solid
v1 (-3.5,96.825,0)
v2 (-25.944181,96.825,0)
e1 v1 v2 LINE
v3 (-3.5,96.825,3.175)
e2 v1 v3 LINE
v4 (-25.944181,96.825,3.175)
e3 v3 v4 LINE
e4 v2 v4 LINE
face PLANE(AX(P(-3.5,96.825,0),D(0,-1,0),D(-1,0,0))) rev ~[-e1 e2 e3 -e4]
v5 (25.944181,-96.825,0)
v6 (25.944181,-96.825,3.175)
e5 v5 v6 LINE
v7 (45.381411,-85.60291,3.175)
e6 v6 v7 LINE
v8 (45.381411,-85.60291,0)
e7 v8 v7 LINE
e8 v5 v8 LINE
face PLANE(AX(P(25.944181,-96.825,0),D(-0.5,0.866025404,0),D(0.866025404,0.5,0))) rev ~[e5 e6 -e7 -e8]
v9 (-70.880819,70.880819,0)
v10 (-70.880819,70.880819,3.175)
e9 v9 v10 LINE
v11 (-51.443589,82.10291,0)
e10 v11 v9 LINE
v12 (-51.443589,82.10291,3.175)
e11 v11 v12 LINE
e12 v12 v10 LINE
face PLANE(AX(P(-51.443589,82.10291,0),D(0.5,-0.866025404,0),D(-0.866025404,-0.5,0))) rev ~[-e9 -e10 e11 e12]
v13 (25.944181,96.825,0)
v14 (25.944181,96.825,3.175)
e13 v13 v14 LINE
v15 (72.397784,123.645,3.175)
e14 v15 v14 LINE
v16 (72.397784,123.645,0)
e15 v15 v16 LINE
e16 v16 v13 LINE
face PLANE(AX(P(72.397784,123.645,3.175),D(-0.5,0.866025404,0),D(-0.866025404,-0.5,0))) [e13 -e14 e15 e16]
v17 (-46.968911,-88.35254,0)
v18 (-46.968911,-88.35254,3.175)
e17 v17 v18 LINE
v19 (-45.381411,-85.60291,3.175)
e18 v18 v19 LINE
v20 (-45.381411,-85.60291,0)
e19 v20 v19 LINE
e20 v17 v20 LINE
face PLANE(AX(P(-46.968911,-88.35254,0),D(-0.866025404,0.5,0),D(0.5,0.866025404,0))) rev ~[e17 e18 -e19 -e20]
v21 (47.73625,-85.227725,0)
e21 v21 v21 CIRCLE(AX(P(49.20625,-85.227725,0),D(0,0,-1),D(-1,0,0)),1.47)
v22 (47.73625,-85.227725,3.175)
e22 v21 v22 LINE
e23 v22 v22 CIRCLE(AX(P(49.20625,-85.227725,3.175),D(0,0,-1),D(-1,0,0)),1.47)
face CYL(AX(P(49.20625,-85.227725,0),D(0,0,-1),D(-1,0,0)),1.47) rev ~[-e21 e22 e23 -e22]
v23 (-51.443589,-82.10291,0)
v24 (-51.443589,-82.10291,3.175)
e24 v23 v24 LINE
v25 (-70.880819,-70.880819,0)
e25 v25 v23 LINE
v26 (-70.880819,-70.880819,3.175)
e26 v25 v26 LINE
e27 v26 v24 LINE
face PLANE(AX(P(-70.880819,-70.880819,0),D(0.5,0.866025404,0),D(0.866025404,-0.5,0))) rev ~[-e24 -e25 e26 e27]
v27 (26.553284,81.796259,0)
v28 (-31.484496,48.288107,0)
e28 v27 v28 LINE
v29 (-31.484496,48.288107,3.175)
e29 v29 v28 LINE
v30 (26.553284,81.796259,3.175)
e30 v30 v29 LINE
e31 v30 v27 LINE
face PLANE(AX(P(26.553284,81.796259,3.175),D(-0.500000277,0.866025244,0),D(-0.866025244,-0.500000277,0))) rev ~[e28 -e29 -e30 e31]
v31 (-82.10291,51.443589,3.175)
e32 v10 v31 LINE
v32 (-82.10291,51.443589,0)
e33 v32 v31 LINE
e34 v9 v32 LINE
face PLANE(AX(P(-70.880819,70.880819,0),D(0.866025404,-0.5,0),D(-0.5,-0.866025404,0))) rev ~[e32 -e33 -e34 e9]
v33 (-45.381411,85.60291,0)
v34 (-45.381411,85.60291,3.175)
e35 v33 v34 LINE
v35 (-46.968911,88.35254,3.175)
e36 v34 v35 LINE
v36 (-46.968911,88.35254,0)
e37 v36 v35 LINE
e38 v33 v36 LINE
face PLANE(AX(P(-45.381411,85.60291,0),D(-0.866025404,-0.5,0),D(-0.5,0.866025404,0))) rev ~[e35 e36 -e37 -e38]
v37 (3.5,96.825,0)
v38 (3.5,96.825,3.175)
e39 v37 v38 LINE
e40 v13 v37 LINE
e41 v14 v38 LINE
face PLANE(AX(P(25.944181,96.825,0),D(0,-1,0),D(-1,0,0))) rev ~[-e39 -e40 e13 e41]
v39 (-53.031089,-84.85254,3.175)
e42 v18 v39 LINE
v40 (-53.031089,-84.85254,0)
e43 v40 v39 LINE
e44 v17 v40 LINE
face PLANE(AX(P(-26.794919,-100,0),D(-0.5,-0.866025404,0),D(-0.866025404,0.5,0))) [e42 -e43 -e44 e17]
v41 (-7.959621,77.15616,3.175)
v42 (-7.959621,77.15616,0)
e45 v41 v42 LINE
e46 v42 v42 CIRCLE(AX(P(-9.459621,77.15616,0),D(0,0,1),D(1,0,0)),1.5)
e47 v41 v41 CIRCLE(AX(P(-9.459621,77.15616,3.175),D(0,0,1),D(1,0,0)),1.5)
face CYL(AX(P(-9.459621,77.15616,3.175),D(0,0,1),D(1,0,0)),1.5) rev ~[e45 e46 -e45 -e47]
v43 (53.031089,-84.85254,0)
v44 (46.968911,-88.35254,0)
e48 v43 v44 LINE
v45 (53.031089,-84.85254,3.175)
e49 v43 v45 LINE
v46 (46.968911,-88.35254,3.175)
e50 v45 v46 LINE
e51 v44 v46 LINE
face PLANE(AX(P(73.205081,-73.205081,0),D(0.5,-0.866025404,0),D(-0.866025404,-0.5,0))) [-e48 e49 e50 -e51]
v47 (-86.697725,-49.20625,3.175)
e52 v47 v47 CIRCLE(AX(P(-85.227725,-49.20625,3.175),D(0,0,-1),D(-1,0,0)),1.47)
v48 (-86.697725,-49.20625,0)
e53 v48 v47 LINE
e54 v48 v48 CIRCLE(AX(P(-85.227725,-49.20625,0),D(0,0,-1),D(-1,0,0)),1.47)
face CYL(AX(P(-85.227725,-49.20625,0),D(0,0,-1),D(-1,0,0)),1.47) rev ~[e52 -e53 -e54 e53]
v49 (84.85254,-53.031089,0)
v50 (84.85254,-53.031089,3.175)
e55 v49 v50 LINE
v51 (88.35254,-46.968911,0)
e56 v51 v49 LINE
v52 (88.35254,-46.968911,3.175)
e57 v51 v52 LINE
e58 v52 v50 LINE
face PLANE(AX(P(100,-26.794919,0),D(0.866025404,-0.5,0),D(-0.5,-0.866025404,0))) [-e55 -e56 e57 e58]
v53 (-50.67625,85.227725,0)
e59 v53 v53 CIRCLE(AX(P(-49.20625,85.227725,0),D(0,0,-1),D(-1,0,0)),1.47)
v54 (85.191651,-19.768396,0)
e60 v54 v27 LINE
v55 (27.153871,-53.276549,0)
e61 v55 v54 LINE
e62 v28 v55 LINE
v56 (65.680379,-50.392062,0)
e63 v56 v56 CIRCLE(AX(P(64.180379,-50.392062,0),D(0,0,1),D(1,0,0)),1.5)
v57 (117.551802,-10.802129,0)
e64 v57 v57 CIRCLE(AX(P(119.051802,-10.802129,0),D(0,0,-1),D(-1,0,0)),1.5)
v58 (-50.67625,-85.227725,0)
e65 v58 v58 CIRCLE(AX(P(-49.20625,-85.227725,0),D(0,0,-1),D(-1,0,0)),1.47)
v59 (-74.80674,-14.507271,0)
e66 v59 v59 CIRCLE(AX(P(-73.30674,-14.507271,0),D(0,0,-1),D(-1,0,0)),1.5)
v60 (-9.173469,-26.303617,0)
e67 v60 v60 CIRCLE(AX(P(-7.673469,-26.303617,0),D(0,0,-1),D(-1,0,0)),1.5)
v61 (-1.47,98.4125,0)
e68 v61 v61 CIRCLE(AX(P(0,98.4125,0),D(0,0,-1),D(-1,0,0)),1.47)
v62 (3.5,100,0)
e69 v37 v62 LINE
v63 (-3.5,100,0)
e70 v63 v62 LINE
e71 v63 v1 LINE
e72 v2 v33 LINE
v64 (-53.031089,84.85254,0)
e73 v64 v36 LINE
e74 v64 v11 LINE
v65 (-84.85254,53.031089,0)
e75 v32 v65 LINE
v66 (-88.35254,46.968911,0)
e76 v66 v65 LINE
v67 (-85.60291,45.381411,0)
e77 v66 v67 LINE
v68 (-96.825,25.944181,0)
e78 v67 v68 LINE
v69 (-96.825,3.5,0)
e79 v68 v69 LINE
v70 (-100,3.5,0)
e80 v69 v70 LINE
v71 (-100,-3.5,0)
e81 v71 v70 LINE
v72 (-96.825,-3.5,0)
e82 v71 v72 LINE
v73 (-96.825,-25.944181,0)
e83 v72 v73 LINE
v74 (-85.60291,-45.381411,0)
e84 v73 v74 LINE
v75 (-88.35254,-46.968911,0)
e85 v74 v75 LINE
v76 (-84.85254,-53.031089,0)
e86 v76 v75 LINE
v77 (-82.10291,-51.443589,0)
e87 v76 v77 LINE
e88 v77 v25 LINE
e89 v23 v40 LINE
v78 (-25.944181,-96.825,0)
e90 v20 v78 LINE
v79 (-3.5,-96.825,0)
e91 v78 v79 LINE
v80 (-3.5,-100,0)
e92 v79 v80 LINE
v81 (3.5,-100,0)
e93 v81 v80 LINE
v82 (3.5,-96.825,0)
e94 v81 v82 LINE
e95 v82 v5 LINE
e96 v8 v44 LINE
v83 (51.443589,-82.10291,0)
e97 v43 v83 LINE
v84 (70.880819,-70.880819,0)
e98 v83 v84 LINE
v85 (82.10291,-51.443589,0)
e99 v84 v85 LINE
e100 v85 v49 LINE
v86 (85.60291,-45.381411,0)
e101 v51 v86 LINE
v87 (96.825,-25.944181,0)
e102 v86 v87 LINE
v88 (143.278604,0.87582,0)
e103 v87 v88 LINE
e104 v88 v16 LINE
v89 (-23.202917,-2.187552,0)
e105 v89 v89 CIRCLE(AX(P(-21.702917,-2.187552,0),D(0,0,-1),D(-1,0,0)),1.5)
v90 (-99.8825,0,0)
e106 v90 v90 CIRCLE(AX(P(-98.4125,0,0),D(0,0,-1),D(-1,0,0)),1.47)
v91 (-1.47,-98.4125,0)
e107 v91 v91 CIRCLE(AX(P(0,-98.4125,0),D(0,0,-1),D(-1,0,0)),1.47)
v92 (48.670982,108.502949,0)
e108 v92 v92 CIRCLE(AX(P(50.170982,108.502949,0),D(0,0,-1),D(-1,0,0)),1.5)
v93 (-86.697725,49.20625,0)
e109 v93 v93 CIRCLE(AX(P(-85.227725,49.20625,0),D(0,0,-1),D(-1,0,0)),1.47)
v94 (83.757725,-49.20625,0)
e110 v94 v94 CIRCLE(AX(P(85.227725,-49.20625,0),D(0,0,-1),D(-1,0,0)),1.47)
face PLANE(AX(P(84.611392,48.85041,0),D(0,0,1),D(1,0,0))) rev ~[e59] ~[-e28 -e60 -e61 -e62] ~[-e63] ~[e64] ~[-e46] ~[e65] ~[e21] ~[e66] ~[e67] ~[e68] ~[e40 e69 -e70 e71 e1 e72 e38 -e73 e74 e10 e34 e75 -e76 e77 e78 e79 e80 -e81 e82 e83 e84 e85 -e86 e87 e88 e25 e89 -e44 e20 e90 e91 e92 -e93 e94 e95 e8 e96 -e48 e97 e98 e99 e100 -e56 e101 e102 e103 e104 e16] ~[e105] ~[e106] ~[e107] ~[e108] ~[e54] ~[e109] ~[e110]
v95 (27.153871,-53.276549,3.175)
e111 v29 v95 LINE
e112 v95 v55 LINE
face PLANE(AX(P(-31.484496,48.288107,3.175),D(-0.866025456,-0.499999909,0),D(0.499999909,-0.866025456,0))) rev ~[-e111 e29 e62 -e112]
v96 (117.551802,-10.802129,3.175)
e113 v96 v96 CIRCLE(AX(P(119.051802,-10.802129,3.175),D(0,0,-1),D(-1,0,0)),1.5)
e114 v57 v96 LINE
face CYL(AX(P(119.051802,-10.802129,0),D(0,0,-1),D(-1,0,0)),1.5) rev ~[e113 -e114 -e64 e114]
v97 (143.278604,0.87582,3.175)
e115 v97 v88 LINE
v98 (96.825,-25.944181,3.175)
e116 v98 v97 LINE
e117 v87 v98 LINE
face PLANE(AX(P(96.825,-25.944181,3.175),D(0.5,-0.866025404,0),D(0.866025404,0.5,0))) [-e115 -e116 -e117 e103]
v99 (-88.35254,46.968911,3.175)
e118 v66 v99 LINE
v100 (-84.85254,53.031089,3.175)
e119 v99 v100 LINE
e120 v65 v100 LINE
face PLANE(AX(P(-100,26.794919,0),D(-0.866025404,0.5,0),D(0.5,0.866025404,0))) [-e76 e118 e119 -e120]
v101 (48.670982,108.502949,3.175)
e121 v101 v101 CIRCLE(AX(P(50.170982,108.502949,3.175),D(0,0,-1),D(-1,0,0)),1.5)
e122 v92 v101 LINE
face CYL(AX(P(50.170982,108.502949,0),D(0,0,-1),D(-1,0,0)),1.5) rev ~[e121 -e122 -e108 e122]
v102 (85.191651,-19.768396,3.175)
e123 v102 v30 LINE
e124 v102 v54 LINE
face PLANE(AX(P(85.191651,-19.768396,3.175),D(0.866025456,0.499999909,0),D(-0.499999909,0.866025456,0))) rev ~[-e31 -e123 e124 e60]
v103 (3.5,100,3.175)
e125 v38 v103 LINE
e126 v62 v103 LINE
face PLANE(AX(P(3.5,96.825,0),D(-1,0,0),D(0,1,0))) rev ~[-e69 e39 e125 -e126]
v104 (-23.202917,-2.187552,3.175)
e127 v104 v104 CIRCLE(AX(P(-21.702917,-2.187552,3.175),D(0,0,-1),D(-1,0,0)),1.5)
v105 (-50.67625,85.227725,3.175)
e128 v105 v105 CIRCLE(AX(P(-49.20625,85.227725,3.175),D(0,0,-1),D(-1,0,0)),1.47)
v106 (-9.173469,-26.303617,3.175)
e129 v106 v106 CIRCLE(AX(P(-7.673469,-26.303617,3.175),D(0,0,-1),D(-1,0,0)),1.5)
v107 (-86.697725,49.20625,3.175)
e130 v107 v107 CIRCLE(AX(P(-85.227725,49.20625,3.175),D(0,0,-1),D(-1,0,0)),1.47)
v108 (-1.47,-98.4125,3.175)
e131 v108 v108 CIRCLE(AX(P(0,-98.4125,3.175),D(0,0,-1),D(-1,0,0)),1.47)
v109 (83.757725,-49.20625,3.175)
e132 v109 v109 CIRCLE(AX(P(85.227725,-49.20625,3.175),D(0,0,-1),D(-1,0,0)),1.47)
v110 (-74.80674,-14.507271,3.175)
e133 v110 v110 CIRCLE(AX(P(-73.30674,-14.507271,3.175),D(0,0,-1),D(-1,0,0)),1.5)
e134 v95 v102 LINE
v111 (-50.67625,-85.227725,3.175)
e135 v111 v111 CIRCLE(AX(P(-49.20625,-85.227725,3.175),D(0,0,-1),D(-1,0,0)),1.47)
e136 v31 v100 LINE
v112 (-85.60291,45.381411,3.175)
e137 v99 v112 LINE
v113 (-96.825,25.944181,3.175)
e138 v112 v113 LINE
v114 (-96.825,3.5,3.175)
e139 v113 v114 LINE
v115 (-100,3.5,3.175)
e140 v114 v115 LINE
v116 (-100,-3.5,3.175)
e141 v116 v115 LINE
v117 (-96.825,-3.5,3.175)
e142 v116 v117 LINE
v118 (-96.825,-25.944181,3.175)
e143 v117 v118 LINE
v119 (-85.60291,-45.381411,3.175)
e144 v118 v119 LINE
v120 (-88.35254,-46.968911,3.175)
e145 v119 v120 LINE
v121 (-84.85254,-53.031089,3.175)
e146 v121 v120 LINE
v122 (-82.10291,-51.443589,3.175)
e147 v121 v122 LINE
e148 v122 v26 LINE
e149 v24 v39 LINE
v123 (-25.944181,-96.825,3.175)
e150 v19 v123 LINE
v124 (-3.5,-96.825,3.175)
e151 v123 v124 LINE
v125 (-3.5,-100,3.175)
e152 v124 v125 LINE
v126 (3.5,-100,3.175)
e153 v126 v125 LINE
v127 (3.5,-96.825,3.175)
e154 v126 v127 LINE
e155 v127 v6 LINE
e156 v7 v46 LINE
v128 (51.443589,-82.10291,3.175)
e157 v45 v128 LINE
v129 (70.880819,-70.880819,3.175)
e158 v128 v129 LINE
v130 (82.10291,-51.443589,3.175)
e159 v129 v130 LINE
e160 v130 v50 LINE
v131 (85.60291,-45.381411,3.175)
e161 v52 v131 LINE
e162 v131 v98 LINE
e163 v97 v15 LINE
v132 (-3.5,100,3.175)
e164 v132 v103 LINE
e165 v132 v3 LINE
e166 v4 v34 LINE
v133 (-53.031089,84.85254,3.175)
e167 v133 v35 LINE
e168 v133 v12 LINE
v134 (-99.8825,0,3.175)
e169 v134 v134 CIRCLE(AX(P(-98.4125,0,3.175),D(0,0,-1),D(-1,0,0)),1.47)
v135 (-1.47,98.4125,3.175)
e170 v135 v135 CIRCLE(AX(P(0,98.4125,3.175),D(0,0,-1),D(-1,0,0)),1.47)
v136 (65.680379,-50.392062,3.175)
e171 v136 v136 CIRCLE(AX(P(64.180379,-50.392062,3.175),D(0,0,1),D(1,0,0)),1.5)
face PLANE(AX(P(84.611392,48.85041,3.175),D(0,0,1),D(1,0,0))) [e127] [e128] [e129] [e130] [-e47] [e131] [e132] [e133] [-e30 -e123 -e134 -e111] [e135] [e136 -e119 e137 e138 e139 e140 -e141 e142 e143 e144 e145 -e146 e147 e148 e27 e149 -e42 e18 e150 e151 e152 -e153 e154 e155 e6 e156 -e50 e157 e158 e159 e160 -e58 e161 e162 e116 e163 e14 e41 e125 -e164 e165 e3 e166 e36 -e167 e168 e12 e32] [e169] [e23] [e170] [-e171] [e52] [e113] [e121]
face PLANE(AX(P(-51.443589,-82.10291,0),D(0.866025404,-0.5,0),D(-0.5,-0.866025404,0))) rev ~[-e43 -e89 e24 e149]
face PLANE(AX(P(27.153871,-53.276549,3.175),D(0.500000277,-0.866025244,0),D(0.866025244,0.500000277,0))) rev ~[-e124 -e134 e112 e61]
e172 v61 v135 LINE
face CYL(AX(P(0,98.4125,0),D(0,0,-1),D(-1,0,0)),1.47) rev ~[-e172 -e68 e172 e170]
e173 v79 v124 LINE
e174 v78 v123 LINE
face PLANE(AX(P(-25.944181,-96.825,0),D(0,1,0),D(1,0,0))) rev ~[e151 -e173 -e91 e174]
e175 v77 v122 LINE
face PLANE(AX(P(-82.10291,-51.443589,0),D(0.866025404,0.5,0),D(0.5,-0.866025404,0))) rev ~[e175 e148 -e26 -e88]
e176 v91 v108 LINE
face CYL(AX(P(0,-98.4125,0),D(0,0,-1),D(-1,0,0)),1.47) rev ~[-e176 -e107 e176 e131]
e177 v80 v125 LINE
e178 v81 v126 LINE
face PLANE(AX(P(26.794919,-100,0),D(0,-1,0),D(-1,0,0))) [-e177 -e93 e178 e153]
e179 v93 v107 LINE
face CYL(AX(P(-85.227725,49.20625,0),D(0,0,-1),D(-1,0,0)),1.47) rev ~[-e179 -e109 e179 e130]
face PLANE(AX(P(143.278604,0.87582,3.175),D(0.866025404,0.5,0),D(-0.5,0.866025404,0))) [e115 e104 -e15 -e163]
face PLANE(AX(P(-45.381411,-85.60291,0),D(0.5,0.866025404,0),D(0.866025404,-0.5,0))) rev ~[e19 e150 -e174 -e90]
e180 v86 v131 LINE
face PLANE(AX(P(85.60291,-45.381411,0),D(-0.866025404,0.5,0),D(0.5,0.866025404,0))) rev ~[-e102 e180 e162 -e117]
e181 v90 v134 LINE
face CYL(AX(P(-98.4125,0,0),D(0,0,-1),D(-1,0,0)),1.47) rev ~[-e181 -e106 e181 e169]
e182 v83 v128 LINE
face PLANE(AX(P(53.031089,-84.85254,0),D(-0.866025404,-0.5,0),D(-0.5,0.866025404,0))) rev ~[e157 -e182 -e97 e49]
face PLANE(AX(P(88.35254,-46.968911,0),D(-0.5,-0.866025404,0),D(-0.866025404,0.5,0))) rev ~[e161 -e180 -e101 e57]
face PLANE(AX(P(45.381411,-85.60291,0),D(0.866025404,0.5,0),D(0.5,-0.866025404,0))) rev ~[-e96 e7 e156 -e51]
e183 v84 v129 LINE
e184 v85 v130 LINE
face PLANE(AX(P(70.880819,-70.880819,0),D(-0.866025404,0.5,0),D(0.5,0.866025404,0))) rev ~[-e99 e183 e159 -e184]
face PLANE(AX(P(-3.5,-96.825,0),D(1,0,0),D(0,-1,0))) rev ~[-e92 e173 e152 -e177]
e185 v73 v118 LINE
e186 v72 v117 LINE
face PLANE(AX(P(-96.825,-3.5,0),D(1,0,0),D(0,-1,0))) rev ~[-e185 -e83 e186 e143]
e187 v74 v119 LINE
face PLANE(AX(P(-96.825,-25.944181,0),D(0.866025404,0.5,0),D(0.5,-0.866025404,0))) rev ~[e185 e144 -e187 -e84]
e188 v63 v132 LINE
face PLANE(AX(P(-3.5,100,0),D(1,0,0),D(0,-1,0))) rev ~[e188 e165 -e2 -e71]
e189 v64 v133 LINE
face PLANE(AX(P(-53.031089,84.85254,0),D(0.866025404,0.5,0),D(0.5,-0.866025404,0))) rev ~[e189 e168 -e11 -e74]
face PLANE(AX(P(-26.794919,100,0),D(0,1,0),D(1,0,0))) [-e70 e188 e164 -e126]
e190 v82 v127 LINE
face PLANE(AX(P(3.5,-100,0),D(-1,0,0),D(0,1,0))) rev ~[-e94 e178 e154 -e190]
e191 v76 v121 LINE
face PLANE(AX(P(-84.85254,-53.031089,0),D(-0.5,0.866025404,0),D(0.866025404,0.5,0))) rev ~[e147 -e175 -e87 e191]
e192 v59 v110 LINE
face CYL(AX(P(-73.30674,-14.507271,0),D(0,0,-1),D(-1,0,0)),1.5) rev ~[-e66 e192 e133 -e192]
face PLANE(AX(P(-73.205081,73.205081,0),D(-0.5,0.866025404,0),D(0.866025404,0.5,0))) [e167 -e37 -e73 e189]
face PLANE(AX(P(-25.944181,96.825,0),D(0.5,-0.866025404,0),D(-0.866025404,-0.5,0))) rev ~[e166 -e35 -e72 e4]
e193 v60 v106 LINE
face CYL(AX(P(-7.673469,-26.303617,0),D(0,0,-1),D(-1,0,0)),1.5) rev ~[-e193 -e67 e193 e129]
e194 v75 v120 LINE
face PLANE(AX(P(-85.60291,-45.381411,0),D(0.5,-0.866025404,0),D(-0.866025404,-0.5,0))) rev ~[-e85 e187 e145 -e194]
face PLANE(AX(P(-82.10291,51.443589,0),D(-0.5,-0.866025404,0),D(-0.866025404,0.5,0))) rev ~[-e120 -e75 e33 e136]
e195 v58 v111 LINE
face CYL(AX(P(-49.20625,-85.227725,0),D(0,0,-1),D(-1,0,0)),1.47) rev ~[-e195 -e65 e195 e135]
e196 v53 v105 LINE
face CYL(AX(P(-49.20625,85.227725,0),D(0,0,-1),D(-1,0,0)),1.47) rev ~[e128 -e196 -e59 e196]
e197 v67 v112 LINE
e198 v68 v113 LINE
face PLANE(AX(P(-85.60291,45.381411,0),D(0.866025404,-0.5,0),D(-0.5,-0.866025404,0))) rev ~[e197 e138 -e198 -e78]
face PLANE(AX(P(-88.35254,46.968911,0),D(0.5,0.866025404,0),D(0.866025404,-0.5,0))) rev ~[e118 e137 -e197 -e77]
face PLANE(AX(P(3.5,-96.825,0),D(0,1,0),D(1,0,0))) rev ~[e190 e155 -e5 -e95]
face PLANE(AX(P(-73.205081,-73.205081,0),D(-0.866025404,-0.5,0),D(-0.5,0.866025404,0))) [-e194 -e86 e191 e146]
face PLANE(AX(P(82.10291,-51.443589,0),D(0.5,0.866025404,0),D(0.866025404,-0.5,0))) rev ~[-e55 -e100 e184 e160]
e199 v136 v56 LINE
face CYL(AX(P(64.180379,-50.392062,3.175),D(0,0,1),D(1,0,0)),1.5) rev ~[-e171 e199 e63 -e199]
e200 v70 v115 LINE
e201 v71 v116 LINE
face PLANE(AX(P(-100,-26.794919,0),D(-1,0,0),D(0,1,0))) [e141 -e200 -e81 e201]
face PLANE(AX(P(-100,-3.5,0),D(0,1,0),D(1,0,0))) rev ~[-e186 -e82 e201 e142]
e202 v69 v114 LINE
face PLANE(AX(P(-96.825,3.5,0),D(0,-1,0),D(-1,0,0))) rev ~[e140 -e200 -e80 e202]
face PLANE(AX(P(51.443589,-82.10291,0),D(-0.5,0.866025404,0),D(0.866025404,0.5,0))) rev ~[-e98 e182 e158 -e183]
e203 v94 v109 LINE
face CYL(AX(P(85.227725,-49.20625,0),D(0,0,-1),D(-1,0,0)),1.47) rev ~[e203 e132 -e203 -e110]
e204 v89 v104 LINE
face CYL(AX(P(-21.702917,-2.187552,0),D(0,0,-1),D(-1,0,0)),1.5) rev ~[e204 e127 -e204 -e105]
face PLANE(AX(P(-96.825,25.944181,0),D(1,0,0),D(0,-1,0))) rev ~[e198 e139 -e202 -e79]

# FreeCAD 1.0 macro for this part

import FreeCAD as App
import Part
import Sketcher
Q = App.Units.Quantity

doc = App.newDocument("Part")
body = doc.addObject("PartDesign::Body", "Body")

# Sketch on XY plane
sketch1 = body.newObject("Sketcher::SketchObject", "Sketch")
sketch1.AttachmentSupport = (doc.getObject("XY_Plane"), [""])
sketch1.MapMode = "FlatFace"
sketch1.addGeometry([
    Part.LineSegment(App.Vector(27, 100, 0), App.Vector(-27, 100, 0)),  # 0
    Part.LineSegment(App.Vector(-27, 100, 0), App.Vector(-73, 73, 0)),  # 1
    Part.LineSegment(App.Vector(-73, 73, 0), App.Vector(-100, 27, 0)),  # 2
    Part.LineSegment(App.Vector(-100, 27, 0), App.Vector(-100, -27, 0)),  # 3
    Part.LineSegment(App.Vector(-100, -27, 0), App.Vector(-73, -73, 0)),  # 4
    Part.LineSegment(App.Vector(-73, -73, 0), App.Vector(-27, -100, 0)),  # 5
    Part.LineSegment(App.Vector(-27, -100, 0), App.Vector(27, -100, 0)),  # 6
    Part.LineSegment(App.Vector(27, -100, 0), App.Vector(73, -73, 0)),  # 7
    Part.LineSegment(App.Vector(73, -73, 0), App.Vector(100, -27, 0)),  # 8
    Part.LineSegment(App.Vector(100, -27, 0), App.Vector(100, 27, 0)),  # 9
    Part.LineSegment(App.Vector(100, 27, 0), App.Vector(73, 73, 0)),  # 10
    Part.LineSegment(App.Vector(73, 73, 0), App.Vector(27, 100, 0)),  # 11
], False)
sketch1.addConstraint([
    Sketcher.Constraint("Coincident", 0, 2, 1, 1),
    Sketcher.Constraint("Coincident", 1, 2, 2, 1),
    Sketcher.Constraint("Coincident", 2, 2, 3, 1),
    Sketcher.Constraint("Coincident", 3, 2, 4, 1),
    Sketcher.Constraint("Coincident", 4, 2, 5, 1),
    Sketcher.Constraint("Coincident", 5, 2, 6, 1),
    Sketcher.Constraint("Coincident", 6, 2, 7, 1),
    Sketcher.Constraint("Coincident", 7, 2, 8, 1),
    Sketcher.Constraint("Coincident", 8, 2, 9, 1),
    Sketcher.Constraint("Coincident", 9, 2, 10, 1),
    Sketcher.Constraint("Coincident", 10, 2, 11, 1),
    Sketcher.Constraint("Coincident", 11, 2, 0, 1),
    Sketcher.Constraint("Horizontal", 0),
    Sketcher.Constraint("Vertical", 3),
    Sketcher.Constraint("Horizontal", 6),
    Sketcher.Constraint("Vertical", 9),
    Sketcher.Constraint("Symmetric", 0, 2, 6, 2, -1, 1),
    Sketcher.Constraint("Symmetric", 1, 2, 7, 2, -1, 1),
    Sketcher.Constraint("Symmetric", 2, 2, 8, 2, -1, 1),
    Sketcher.Constraint("Symmetric", 4, 2, 10, 2, -1, 1),
    Sketcher.Constraint("Symmetric", 4, 2, 7, 2, -2),
    Sketcher.Constraint("Perpendicular", 1, 4),
    Sketcher.Constraint("Perpendicular", 2, 5),
    Sketcher.Constraint("Perpendicular", 7, 10),
    Sketcher.Constraint("Perpendicular", 8, 11),
    Sketcher.Constraint("Horizontal", 3, 2, 8, 2),
    Sketcher.Constraint("Equal", 6, 3),
    Sketcher.Constraint("Equal", 1, 2),
    Sketcher.Constraint("Angle", 1, Q("-150 deg")),
    Sketcher.Constraint("DistanceY", -1, 1, 0, 2, Q("100 mm")),
    Sketcher.Constraint("DistanceY", 3, 2, 1, 2, Q("100 mm")),
])
pad1 = body.newObject("PartDesign::Pad", "Pad")
pad1.Profile = sketch1
pad1.Length = 3.175

# Sketch on XY plane
sketch2 = body.newObject("Sketcher::SketchObject", "Sketch001")
sketch2.AttachmentSupport = (doc.getObject("XY_Plane"), [""])
sketch2.MapMode = "FlatFace"
sketch2.addGeometry([
    Part.LineSegment(App.Vector(-51.4, -82.1, 0), App.Vector(-53, -84.9, 0)),  # 0
    Part.LineSegment(App.Vector(-53, -84.9, 0), App.Vector(-73.2, -73.2, 0)),  # 1
    Part.LineSegment(App.Vector(-73.2, -73.2, 0), App.Vector(-84.9, -53, 0)),  # 2
    Part.LineSegment(App.Vector(-84.9, -53, 0), App.Vector(-82.1, -51.4, 0)),  # 3
    Part.LineSegment(App.Vector(-82.1, -51.4, 0), App.Vector(-70.9, -70.9, 0)),  # 4
    Part.LineSegment(App.Vector(-70.9, -70.9, 0), App.Vector(-51.4, -82.1, 0)),  # 5
    Part.LineSegment(App.Vector(26.8, -100, 0), App.Vector(3.5, -100, 0)),  # 6
    Part.LineSegment(App.Vector(3.5, -100, 0), App.Vector(3.5, -96.8, 0)),  # 7
    Part.LineSegment(App.Vector(3.5, -96.8, 0), App.Vector(25.9, -96.8, 0)),  # 8
    Part.LineSegment(App.Vector(25.9, -96.8, 0), App.Vector(45.4, -85.6, 0)),  # 9
    Part.LineSegment(App.Vector(45.4, -85.6, 0), App.Vector(47, -88.4, 0)),  # 10
    Part.LineSegment(App.Vector(47, -88.4, 0), App.Vector(26.8, -100, 0)),  # 11
    Part.LineSegment(App.Vector(73.2, -73.2, 0), App.Vector(53, -84.9, 0)),  # 12
    Part.LineSegment(App.Vector(53, -84.9, 0), App.Vector(51.4, -82.1, 0)),  # 13
    Part.LineSegment(App.Vector(51.4, -82.1, 0), App.Vector(70.9, -70.9, 0)),  # 14
    Part.LineSegment(App.Vector(70.9, -70.9, 0), App.Vector(82.1, -51.4, 0)),  # 15
    Part.LineSegment(App.Vector(82.1, -51.4, 0), App.Vector(84.9, -53, 0)),  # 16
    Part.LineSegment(App.Vector(84.9, -53, 0), App.Vector(73.2, -73.2, 0)),  # 17
    Part.Circle(App.Vector(49.2, -85.2, 0), App.Vector(0, 0, 1), 1.5),  # 18
    Part.LineSegment(App.Vector(100, -26.8, 0), App.Vector(88.4, -47, 0)),  # 19
    Part.LineSegment(App.Vector(88.4, -47, 0), App.Vector(85.6, -45.4, 0)),  # 20
    Part.LineSegment(App.Vector(85.6, -45.4, 0), App.Vector(96.8, -25.9, 0)),  # 21
    Part.LineSegment(App.Vector(96.8, -25.9, 0), App.Vector(96.8, -3.5, 0)),  # 22
    Part.LineSegment(App.Vector(96.8, -3.5, 0), App.Vector(100, -3.5, 0)),  # 23
    Part.LineSegment(App.Vector(100, -3.5, 0), App.Vector(100, -26.8, 0)),  # 24
    Part.LineSegment(App.Vector(100, 26.8, 0), App.Vector(100, 3.5, 0)),  # 25
    Part.LineSegment(App.Vector(100, 3.5, 0), App.Vector(96.8, 3.5, 0)),  # 26
    Part.LineSegment(App.Vector(96.8, 3.5, 0), App.Vector(96.8, 25.9, 0)),  # 27
    Part.LineSegment(App.Vector(96.8, 25.9, 0), App.Vector(85.6, 45.4, 0)),  # 28
    Part.LineSegment(App.Vector(85.6, 45.4, 0), App.Vector(88.4, 47, 0)),  # 29
    Part.LineSegment(App.Vector(88.4, 47, 0), App.Vector(100, 26.8, 0)),  # 30
    Part.LineSegment(App.Vector(26.8, 100, 0), App.Vector(47, 88.4, 0)),  # 31
    Part.LineSegment(App.Vector(47, 88.4, 0), App.Vector(45.4, 85.6, 0)),  # 32
    Part.LineSegment(App.Vector(45.4, 85.6, 0), App.Vector(25.9, 96.8, 0)),  # 33
    Part.LineSegment(App.Vector(25.9, 96.8, 0), App.Vector(3.5, 96.8, 0)),  # 34
    Part.LineSegment(App.Vector(3.5, 96.8, 0), App.Vector(3.5, 100, 0)),  # 35
    Part.LineSegment(App.Vector(3.5, 100, 0), App.Vector(26.8, 100, 0)),  # 36
    Part.LineSegment(App.Vector(-26.8, 100, 0), App.Vector(-3.5, 100, 0)),  # 37
    Part.LineSegment(App.Vector(-3.5, 100, 0), App.Vector(-3.5, 96.8, 0)),  # 38
    Part.LineSegment(App.Vector(-3.5, 96.8, 0), App.Vector(-25.9, 96.8, 0)),  # 39
    Part.LineSegment(App.Vector(-25.9, 96.8, 0), App.Vector(-45.4, 85.6, 0)),  # 40
    Part.LineSegment(App.Vector(-45.4, 85.6, 0), App.Vector(-47, 88.4, 0)),  # 41
    Part.LineSegment(App.Vector(-47, 88.4, 0), App.Vector(-26.8, 100, 0)),  # 42
    Part.LineSegment(App.Vector(-73.2, 73.2, 0), App.Vector(-53, 84.9, 0)),  # 43
    Part.LineSegment(App.Vector(-53, 84.9, 0), App.Vector(-51.4, 82.1, 0)),  # 44
    Part.LineSegment(App.Vector(-51.4, 82.1, 0), App.Vector(-70.9, 70.9, 0)),  # 45
    Part.LineSegment(App.Vector(-70.9, 70.9, 0), App.Vector(-82.1, 51.4, 0)),  # 46
    Part.LineSegment(App.Vector(-82.1, 51.4, 0), App.Vector(-84.9, 53, 0)),  # 47
    Part.LineSegment(App.Vector(-84.9, 53, 0), App.Vector(-73.2, 73.2, 0)),  # 48
    Part.Circle(App.Vector(85.2, 49.2, 0), App.Vector(0, 0, 1), 1.5),  # 49
    Part.Circle(App.Vector(49.2, 85.2, 0), App.Vector(0, 0, 1), 1.5),  # 50
    Part.Circle(App.Vector(0, 98.4, 0), App.Vector(0, 0, 1), 1.5),  # 51
    Part.Circle(App.Vector(-49.2, 85.2, 0), App.Vector(0, 0, 1), 1.5),  # 52
    Part.Circle(App.Vector(-85.2, 49.2, 0), App.Vector(0, 0, 1), 1.5),  # 53
    Part.Circle(App.Vector(-98.4, 0, 0), App.Vector(0, 0, 1), 1.5),  # 54
    Part.LineSegment(App.Vector(-96.8, -3.5, 0), App.Vector(-96.8, -25.9, 0)),  # 55
    Part.LineSegment(App.Vector(-96.8, -25.9, 0), App.Vector(-85.6, -45.4, 0)),  # 56
    Part.LineSegment(App.Vector(-85.6, -45.4, 0), App.Vector(-88.4, -47, 0)),  # 57
    Part.LineSegment(App.Vector(-88.4, -47, 0), App.Vector(-100, -26.8, 0)),  # 58
    Part.LineSegment(App.Vector(-100, -26.8, 0), App.Vector(-100, -3.5, 0)),  # 59
    Part.LineSegment(App.Vector(-100, -3.5, 0), App.Vector(-96.8, -3.5, 0)),  # 60
    Part.Circle(App.Vector(-85.2, -49.2, 0), App.Vector(0, 0, 1), 1.5),  # 61
    Part.LineSegment(App.Vector(-45.4, -85.6, 0), App.Vector(-25.9, -96.8, 0)),  # 62
    Part.LineSegment(App.Vector(-25.9, -96.8, 0), App.Vector(-3.5, -96.8, 0)),  # 63
    Part.LineSegment(App.Vector(-3.5, -96.8, 0), App.Vector(-3.5, -100, 0)),  # 64
    Part.LineSegment(App.Vector(-3.5, -100, 0), App.Vector(-26.8, -100, 0)),  # 65
    Part.LineSegment(App.Vector(-26.8, -100, 0), App.Vector(-47, -88.4, 0)),  # 66
    Part.LineSegment(App.Vector(-47, -88.4, 0), App.Vector(-45.4, -85.6, 0)),  # 67
    Part.Circle(App.Vector(0, -98.4, 0), App.Vector(0, 0, 1), 1.5),  # 68
    Part.Circle(App.Vector(-49.2, -85.2, 0), App.Vector(0, 0, 1), 1.5),  # 69
    Part.Circle(App.Vector(85.2, -49.2, 0), App.Vector(0, 0, 1), 1.5),  # 70
    Part.Circle(App.Vector(98.4, 0, 0), App.Vector(0, 0, 1), 1.5),  # 71
    Part.LineSegment(App.Vector(82.1, 51.4, 0), App.Vector(70.9, 70.9, 0)),  # 72
    Part.LineSegment(App.Vector(70.9, 70.9, 0), App.Vector(51.4, 82.1, 0)),  # 73
    Part.LineSegment(App.Vector(51.4, 82.1, 0), App.Vector(53, 84.9, 0)),  # 74
    Part.LineSegment(App.Vector(53, 84.9, 0), App.Vector(73.2, 73.2, 0)),  # 75
    Part.LineSegment(App.Vector(73.2, 73.2, 0), App.Vector(84.9, 53, 0)),  # 76
    Part.LineSegment(App.Vector(84.9, 53, 0), App.Vector(82.1, 51.4, 0)),  # 77
    Part.LineSegment(App.Vector(-100, 26.8, 0), App.Vector(-88.4, 47, 0)),  # 78
    Part.LineSegment(App.Vector(-88.4, 47, 0), App.Vector(-85.6, 45.4, 0)),  # 79
    Part.LineSegment(App.Vector(-85.6, 45.4, 0), App.Vector(-96.8, 25.9, 0)),  # 80
    Part.LineSegment(App.Vector(-96.8, 25.9, 0), App.Vector(-96.8, 3.5, 0)),  # 81
    Part.LineSegment(App.Vector(-96.8, 3.5, 0), App.Vector(-100, 3.5, 0)),  # 82
    Part.LineSegment(App.Vector(-100, 3.5, 0), App.Vector(-100, 26.8, 0)),  # 83
], False)
sketch2.addConstraint([
    Sketcher.Constraint("Coincident", 0, 2, 1, 1),
    Sketcher.Constraint("Coincident", 1, 2, 2, 1),
    Sketcher.Constraint("Coincident", 2, 2, 3, 1),
    Sketcher.Constraint("Coincident", 3, 2, 4, 1),
    Sketcher.Constraint("Coincident", 4, 2, 5, 1),
    Sketcher.Constraint("Coincident", 5, 2, 0, 1),
    Sketcher.Constraint("Coincident", 6, 2, 7, 1),
    Sketcher.Constraint("Coincident", 7, 2, 8, 1),
    Sketcher.Constraint("Coincident", 8, 2, 9, 1),
    Sketcher.Constraint("Coincident", 9, 2, 10, 1),
    Sketcher.Constraint("Coincident", 10, 2, 11, 1),
    Sketcher.Constraint("Coincident", 11, 2, 6, 1),
    Sketcher.Constraint("Coincident", 12, 2, 13, 1),
    Sketcher.Constraint("Coincident", 13, 2, 14, 1),
    Sketcher.Constraint("Coincident", 14, 2, 15, 1),
    Sketcher.Constraint("Coincident", 15, 2, 16, 1),
    Sketcher.Constraint("Coincident", 16, 2, 17, 1),
    Sketcher.Constraint("Coincident", 17, 2, 12, 1),
    Sketcher.Constraint("Coincident", 19, 2, 20, 1),
    Sketcher.Constraint("Coincident", 20, 2, 21, 1),
    Sketcher.Constraint("Coincident", 21, 2, 22, 1),
    Sketcher.Constraint("Coincident", 22, 2, 23, 1),
    Sketcher.Constraint("Coincident", 23, 2, 24, 1),
    Sketcher.Constraint("Coincident", 24, 2, 19, 1),
    Sketcher.Constraint("Coincident", 25, 2, 26, 1),
    Sketcher.Constraint("Coincident", 26, 2, 27, 1),
    Sketcher.Constraint("Coincident", 27, 2, 28, 1),
    Sketcher.Constraint("Coincident", 28, 2, 29, 1),
    Sketcher.Constraint("Coincident", 29, 2, 30, 1),
    Sketcher.Constraint("Coincident", 30, 2, 25, 1),
    Sketcher.Constraint("Coincident", 31, 2, 32, 1),
    Sketcher.Constraint("Coincident", 32, 2, 33, 1),
    Sketcher.Constraint("Coincident", 33, 2, 34, 1),
    Sketcher.Constraint("Coincident", 34, 2, 35, 1),
    Sketcher.Constraint("Coincident", 35, 2, 36, 1),
    Sketcher.Constraint("Coincident", 36, 2, 31, 1),
    Sketcher.Constraint("Coincident", 37, 2, 38, 1),
    Sketcher.Constraint("Coincident", 38, 2, 39, 1),
    Sketcher.Constraint("Coincident", 39, 2, 40, 1),
    Sketcher.Constraint("Coincident", 40, 2, 41, 1),
    Sketcher.Constraint("Coincident", 41, 2, 42, 1),
    Sketcher.Constraint("Coincident", 42, 2, 37, 1),
    Sketcher.Constraint("Coincident", 43, 2, 44, 1),
    Sketcher.Constraint("Coincident", 44, 2, 45, 1),
    Sketcher.Constraint("Coincident", 45, 2, 46, 1),
    Sketcher.Constraint("Coincident", 46, 2, 47, 1),
    Sketcher.Constraint("Coincident", 47, 2, 48, 1),
    Sketcher.Constraint("Coincident", 48, 2, 43, 1),
    Sketcher.Constraint("Coincident", 55, 2, 56, 1),
    Sketcher.Constraint("Coincident", 56, 2, 57, 1),
    Sketcher.Constraint("Coincident", 57, 2, 58, 1),
    Sketcher.Constraint("Coincident", 58, 2, 59, 1),
    Sketcher.Constraint("Coincident", 59, 2, 60, 1),
    Sketcher.Constraint("Coincident", 60, 2, 55, 1),
    Sketcher.Constraint("Coincident", 62, 2, 63, 1),
    Sketcher.Constraint("Coincident", 63, 2, 64, 1),
    Sketcher.Constraint("Coincident", 64, 2, 65, 1),
    Sketcher.Constraint("Coincident", 65, 2, 66, 1),
    Sketcher.Constraint("Coincident", 66, 2, 67, 1),
    Sketcher.Constraint("Coincident", 67, 2, 62, 1),
    Sketcher.Constraint("Coincident", 72, 2, 73, 1),
    Sketcher.Constraint("Coincident", 73, 2, 74, 1),
    Sketcher.Constraint("Coincident", 74, 2, 75, 1),
    Sketcher.Constraint("Coincident", 75, 2, 76, 1),
    Sketcher.Constraint("Coincident", 76, 2, 77, 1),
    Sketcher.Constraint("Coincident", 77, 2, 72, 1),
    Sketcher.Constraint("Coincident", 78, 2, 79, 1),
    Sketcher.Constraint("Coincident", 79, 2, 80, 1),
    Sketcher.Constraint("Coincident", 80, 2, 81, 1),
    Sketcher.Constraint("Coincident", 81, 2, 82, 1),
    Sketcher.Constraint("Coincident", 82, 2, 83, 1),
    Sketcher.Constraint("Coincident", 83, 2, 78, 1),
    Sketcher.Constraint("Horizontal", 6),
    Sketcher.Constraint("Vertical", 7),
    Sketcher.Constraint("Horizontal", 8),
    Sketcher.Constraint("Vertical", 22),
    Sketcher.Constraint("Horizontal", 23),
    Sketcher.Constraint("Vertical", 24),
    Sketcher.Constraint("Vertical", 25),
    Sketcher.Constraint("Horizontal", 26),
    Sketcher.Constraint("Vertical", 27),
    Sketcher.Constraint("Horizontal", 34),
    Sketcher.Constraint("Vertical", 35),
    Sketcher.Constraint("Horizontal", 36),
    Sketcher.Constraint("Horizontal", 37),
    Sketcher.Constraint("Vertical", 38),
    Sketcher.Constraint("Horizontal", 39),
    Sketcher.Constraint("Vertical", 55),
    Sketcher.Constraint("Vertical", 59),
    Sketcher.Constraint("Horizontal", 60),
    Sketcher.Constraint("Horizontal", 63),
    Sketcher.Constraint("Vertical", 64),
    Sketcher.Constraint("Horizontal", 65),
    Sketcher.Constraint("Vertical", 81),
    Sketcher.Constraint("Horizontal", 82),
    Sketcher.Constraint("Vertical", 83),
    Sketcher.Constraint("Equal", 18, 49),
    Sketcher.Constraint("Equal", 49, 50),
    Sketcher.Constraint("Equal", 50, 51),
    Sketcher.Constraint("Equal", 51, 52),
    Sketcher.Constraint("Equal", 52, 53),
    Sketcher.Constraint("Equal", 53, 54),
    Sketcher.Constraint("Equal", 54, 61),
    Sketcher.Constraint("Equal", 61, 68),
    Sketcher.Constraint("Equal", 68, 69),
    Sketcher.Constraint("Equal", 69, 70),
    Sketcher.Constraint("Equal", 70, 71),
    Sketcher.Constraint("Symmetric", 18, 3, 52, 3, -1, 1),
    Sketcher.Constraint("Symmetric", 49, 3, 61, 3, -1, 1),
    Sketcher.Constraint("Symmetric", 51, 3, 68, 3, -1, 1),
    Sketcher.Constraint("Symmetric", 50, 3, 69, 3, -1, 1),
    Sketcher.Constraint("Symmetric", 53, 3, 70, 3, -1, 1),
    Sketcher.Constraint("Symmetric", 54, 3, 71, 3, -1, 1),
    Sketcher.Constraint("Symmetric", 6, 2, 37, 2, -1, 1),
    Sketcher.Constraint("Symmetric", 8, 2, 39, 2, -1, 1),
    Sketcher.Constraint("Symmetric", 9, 2, 40, 2, -1, 1),
    Sketcher.Constraint("Symmetric", 10, 2, 41, 2, -1, 1),
    Sketcher.Constraint("Symmetric", 12, 2, 43, 2, -1, 1),
    Sketcher.Constraint("Symmetric", 13, 2, 44, 2, -1, 1),
    Sketcher.Constraint("Symmetric", 14, 2, 45, 2, -1, 1),
    Sketcher.Constraint("Symmetric", 15, 2, 46, 2, -1, 1),
    Sketcher.Constraint("Symmetric", 16, 2, 47, 2, -1, 1),
    Sketcher.Constraint("Symmetric", 17, 2, 48, 2, -1, 1),
    Sketcher.Constraint("Symmetric", 27, 2, 55, 2, -1, 1),
    Sketcher.Constraint("Symmetric", 28, 2, 56, 2, -1, 1),
    Sketcher.Constraint("Symmetric", 29, 2, 57, 2, -1, 1),
    Sketcher.Constraint("Symmetric", 30, 2, 58, 2, -1, 1),
    Sketcher.Constraint("Symmetric", 33, 2, 62, 2, -1, 1),
    Sketcher.Constraint("Symmetric", 35, 2, 64, 2, -1, 1),
    Sketcher.Constraint("Symmetric", 31, 2, 66, 2, -1, 1),
    Sketcher.Constraint("Symmetric", 32, 2, 67, 2, -1, 1),
    Sketcher.Constraint("Symmetric", 4, 2, 72, 2, -1, 1),
    Sketcher.Constraint("Symmetric", 5, 2, 73, 2, -1, 1),
    Sketcher.Constraint("Symmetric", 0, 2, 74, 2, -1, 1),
    Sketcher.Constraint("Symmetric", 1, 2, 75, 2, -1, 1),
    Sketcher.Constraint("Symmetric", 2, 2, 76, 2, -1, 1),
    Sketcher.Constraint("Symmetric", 3, 2, 77, 2, -1, 1),
    Sketcher.Constraint("Symmetric", 19, 2, 78, 2, -1, 1),
    Sketcher.Constraint("Symmetric", 20, 2, 79, 2, -1, 1),
    Sketcher.Constraint("Symmetric", 21, 2, 80, 2, -1, 1),
    Sketcher.Constraint("Symmetric", 23, 2, 82, 2, -1, 1),
    Sketcher.Constraint("Symmetric", 50, 3, 52, 3, -2),
    Sketcher.Constraint("Symmetric", 49, 3, 53, 3, -2),
    Sketcher.Constraint("Symmetric", 0, 2, 12, 2, -2),
    Sketcher.Constraint("Symmetric", 5, 2, 13, 2, -2),
    Sketcher.Constraint("Symmetric", 4, 2, 14, 2, -2),
    Sketcher.Constraint("Symmetric", 3, 2, 15, 2, -2),
    Sketcher.Constraint("Symmetric", 2, 2, 16, 2, -2),
    Sketcher.Constraint("Symmetric", 1, 2, 17, 2, -2),
    Sketcher.Constraint("Symmetric", 35, 2, 37, 2, -2),
    Sketcher.Constraint("Symmetric", 33, 2, 39, 2, -2),
    Sketcher.Constraint("Symmetric", 32, 2, 40, 2, -2),
    Sketcher.Constraint("Symmetric", 31, 2, 41, 2, -2),
    Sketcher.Constraint("Symmetric", 21, 2, 55, 2, -2),
    Sketcher.Constraint("Symmetric", 20, 2, 56, 2, -2),
    Sketcher.Constraint("Symmetric", 19, 2, 57, 2, -2),
    Sketcher.Constraint("Symmetric", 24, 2, 58, 2, -2),
    Sketcher.Constraint("PointOnObject", 51, 3, -2),
    Sketcher.Constraint("PointOnObject", 54, 3, -1),
    Sketcher.Constraint("Perpendicular", 0, 1),
    Sketcher.Constraint("Perpendicular", 2, 3),
    Sketcher.Constraint("Perpendicular", 3, 4),
    Sketcher.Constraint("Parallel", 1, 5),
    Sketcher.Constraint("Perpendicular", 4, 9),
    Sketcher.Constraint("Perpendicular", 9, 10),
    Sketcher.Constraint("Perpendicular", 10, 11),
    Sketcher.Constraint("Parallel", 11, 12),
    Sketcher.Constraint("Parallel", 17, 19),
    Sketcher.Constraint("Perpendicular", 19, 20),
    Sketcher.Constraint("Perpendicular", 20, 21),
    Sketcher.Constraint("Perpendicular", 21, 31),
    Sketcher.Constraint("Perpendicular", 41, 42),
    Sketcher.Constraint("Parallel", 62, 66),
    Sketcher.Constraint("Perpendicular", 75, 78),
    Sketcher.Constraint("Horizontal", 23, 2, 59, 2),
    Sketcher.Constraint("Horizontal", 26, 2, 81, 2),
    Sketcher.Constraint("Equal", 82, 7),
    Sketcher.Constraint("Equal", 63, 22),
    Sketcher.Constraint("Equal", 65, 24),
    Sketcher.Constraint("Equal", 1, 2),
    Sketcher.Constraint("Equal", 0, 3),
    Sketcher.Constraint("Equal", 5, 9),
    Sketcher.Constraint("Equal", 3, 10),
    Sketcher.Constraint("Equal", 2, 11),
    Sketcher.Constraint("Equal", 17, 19),
    Sketcher.Constraint("Diameter", 18, Q("2.94 mm")),
    Sketcher.Constraint("Angle", 0, Q("-120 deg")),
    Sketcher.Constraint("DistanceY", 6, 2, -1, 1, Q("100 mm")),
    Sketcher.Constraint("DistanceX", -1, 1, 23, 2, Q("100 mm")),
    Sketcher.Constraint("DistanceX", -1, 1, 6, 2, Q("3.5 mm")),
    Sketcher.Constraint("DistanceY", 22, 2, -1, 1, Q("3.5 mm")),
    Sketcher.Constraint("DistanceX", 23, 1, 23, 2, Q("3.175 mm")),
    Sketcher.Constraint("DistanceX", 6, 2, 6, 1, Q("23.294919 mm")),
    Sketcher.Constraint("DistanceY", -1, 1, 51, 3, Q("98.4125 mm")),
    Sketcher.Constraint("DistanceX", 54, 3, -1, 1, Q("98.4125 mm")),
    Sketcher.Constraint("Distance", 1, Q("23.294919 mm")),
    Sketcher.Constraint("DistanceX", -1, 1, 18, 3, Q("49.20625 mm")),
    Sketcher.Constraint("DistanceY", -1, 1, 49, 3, Q("49.20625 mm")),
    Sketcher.Constraint("DistanceX", 0, 2, -1, 1, Q("53.031089 mm")),
    Sketcher.Constraint("DistanceY", 0, 2, -1, 1, Q("84.85254 mm")),
    Sketcher.Constraint("DistanceY", 18, 3, -1, 1, Q("85.227725 mm")),
    Sketcher.Constraint("DistanceX", -1, 1, 49, 3, Q("85.227725 mm")),
])
pocket1 = body.newObject("PartDesign::Pocket", "Pocket")
pocket1.Profile = sketch2
pocket1.Length = 10
pocket1.Reversed = True

# Sketch on XY plane
sketch3 = body.newObject("Sketcher::SketchObject", "Sketch002")
sketch3.AttachmentSupport = (doc.getObject("XY_Plane"), [""])
sketch3.MapMode = "FlatFace"
sketch3.AttachmentOffset = App.Placement(App.Vector(0, 0, 3.175), App.Rotation())
sketch3.addGeometry([
    Part.LineSegment(App.Vector(27.5, 99.6, 0), App.Vector(25.9, 96.8, 0)),  # 0
    Part.LineSegment(App.Vector(25.9, 96.8, 0), App.Vector(96.8, -25.9, 0)),  # 1
    Part.LineSegment(App.Vector(96.8, -25.9, 0), App.Vector(100, -25.9, 0)),  # 2
    Part.LineSegment(App.Vector(100, -25.9, 0), App.Vector(100, 27.8, 0)),  # 3
    Part.LineSegment(App.Vector(100, 27.8, 0), App.Vector(73.2, 73.2, 0)),  # 4
    Part.LineSegment(App.Vector(73.2, 73.2, 0), App.Vector(27.5, 99.6, 0)),  # 5
], False)
sketch3.addConstraint([
    Sketcher.Constraint("Coincident", 0, 2, 1, 1),
    Sketcher.Constraint("Coincident", 1, 2, 2, 1),
    Sketcher.Constraint("Coincident", 2, 2, 3, 1),
    Sketcher.Constraint("Coincident", 3, 2, 4, 1),
    Sketcher.Constraint("Coincident", 4, 2, 5, 1),
    Sketcher.Constraint("Coincident", 5, 2, 0, 1),
    Sketcher.Constraint("Horizontal", 2),
    Sketcher.Constraint("Vertical", 3),
    Sketcher.Constraint("Perpendicular", 0, 5),
    Sketcher.Constraint("Equal", 4, 5),
    Sketcher.Constraint("Angle", 0, Q("-120 deg")),
    Sketcher.Constraint("Angle", 1, Q("-60 deg")),
    Sketcher.Constraint("DistanceX", -1, 1, 2, 2, Q("100 mm")),
    Sketcher.Constraint("DistanceX", 2, 1, 2, 2, Q("3.175 mm")),
    Sketcher.Constraint("Distance", 0, Q("3.175 mm")),
    Sketcher.Constraint("DistanceY", -1, 1, 0, 2, Q("96.825 mm")),
    Sketcher.Constraint("Distance", 1, Q("141.761639 mm")),
    Sketcher.Constraint("Distance", 4, Q("52.722371 mm")),
])
pocket2 = body.newObject("PartDesign::Pocket", "Pocket001")
pocket2.Profile = sketch3
pocket2.Length = 10

# Sketch on XY plane
sketch4 = body.newObject("Sketcher::SketchObject", "Sketch003")
sketch4.AttachmentSupport = (doc.getObject("XY_Plane"), [""])
sketch4.MapMode = "FlatFace"
sketch4.AttachmentOffset = App.Placement(App.Vector(0, 0, 3.175), App.Rotation())
sketch4.addGeometry([
    Part.LineSegment(App.Vector(97, -26, 0), App.Vector(143, 1, 0)),
    Part.LineSegment(App.Vector(143, 1, 0), App.Vector(72, 124, 0)),
    Part.LineSegment(App.Vector(72, 124, 0), App.Vector(26, 97, 0)),
    Part.LineSegment(App.Vector(26, 97, 0), App.Vector(97, -26, 0)),
], False)
sketch4.addConstraint([
    Sketcher.Constraint("Coincident", 0, 2, 1, 1),
    Sketcher.Constraint("Coincident", 1, 2, 2, 1),
    Sketcher.Constraint("Coincident", 2, 2, 3, 1),
    Sketcher.Constraint("Coincident", 3, 2, 0, 1),
    Sketcher.Constraint("Perpendicular", 0, 1),
    Sketcher.Constraint("Perpendicular", 1, 2),
    Sketcher.Constraint("Perpendicular", 2, 3),
    Sketcher.Constraint("Angle", 0, Q("30 deg")),
    Sketcher.Constraint("Distance", 0, Q("53.640001 mm")),
    Sketcher.Constraint("DistanceY", -1, 1, 1, 2, Q("123.645 mm")),
    Sketcher.Constraint("DistanceX", -1, 1, 3, 2, Q("96.825 mm")),
    Sketcher.Constraint("Distance", 1, Q("141.761639 mm")),
])
pad2 = body.newObject("PartDesign::Pad", "Pad001")
pad2.Profile = sketch4
pad2.Length = 3.175
pad2.Reversed = True

# Sketch on XY plane
sketch5 = body.newObject("Sketcher::SketchObject", "Sketch004")
sketch5.AttachmentSupport = (doc.getObject("XY_Plane"), [""])
sketch5.MapMode = "FlatFace"
sketch5.addGeometry([
    Part.Circle(App.Vector(119.1, -10.8, 0), App.Vector(0, 0, 1), 1.5),
    Part.Circle(App.Vector(50.2, 108.5, 0), App.Vector(0, 0, 1), 1.5),
], False)
sketch5.addConstraint([
    Sketcher.Constraint("Equal", 0, 1),
    Sketcher.Constraint("Diameter", 0, Q("3 mm")),
    Sketcher.Constraint("DistanceX", -1, 1, 0, 3, Q("119.051802 mm")),
    Sketcher.Constraint("DistanceY", 0, 3, -1, 1, Q("10.802129 mm")),
    Sketcher.Constraint("DistanceY", -1, 1, 1, 3, Q("108.502949 mm")),
    Sketcher.Constraint("DistanceX", 1, 3, 0, 3, Q("68.880819 mm")),
])
pocket3 = body.newObject("PartDesign::Pocket", "Pocket002")
pocket3.Profile = sketch5
pocket3.Length = 10
pocket3.Reversed = True

# Sketch on XY plane
sketch6 = body.newObject("Sketcher::SketchObject", "Sketch005")
sketch6.AttachmentSupport = (doc.getObject("XY_Plane"), [""])
sketch6.MapMode = "FlatFace"
sketch6.addGeometry([
    Part.Circle(App.Vector(-73.3, -14.5, 0), App.Vector(0, 0, 1), 1.5),
    Part.Circle(App.Vector(-21.7, -2.2, 0), App.Vector(0, 0, 1), 1.5),
    Part.Circle(App.Vector(-7.7, -26.3, 0), App.Vector(0, 0, 1), 1.5),
], False)
sketch6.addConstraint([
    Sketcher.Constraint("Equal", 0, 1),
    Sketcher.Constraint("Equal", 1, 2),
    Sketcher.Constraint("Diameter", 0, Q("3 mm")),
    Sketcher.Constraint("DistanceX", 0, 3, -1, 1, Q("73.30674 mm")),
    Sketcher.Constraint("DistanceY", 0, 3, -1, 1, Q("14.507271 mm")),
    Sketcher.Constraint("DistanceX", 2, 3, -1, 1, Q("7.673469 mm")),
    Sketcher.Constraint("DistanceY", 0, 3, 1, 3, Q("12.319719 mm")),
    Sketcher.Constraint("DistanceX", 1, 3, -1, 1, Q("21.702917 mm")),
    Sketcher.Constraint("DistanceY", 2, 3, -1, 1, Q("26.303617 mm")),
])
pocket4 = body.newObject("PartDesign::Pocket", "Pocket003")
pocket4.Profile = sketch6
pocket4.Length = 10
pocket4.Reversed = True

# Sketch on XY plane
sketch7 = body.newObject("Sketcher::SketchObject", "Sketch006")
sketch7.AttachmentSupport = (doc.getObject("XY_Plane"), [""])
sketch7.MapMode = "FlatFace"
sketch7.AttachmentOffset = App.Placement(App.Vector(0, 0, 3.175), App.Rotation())
sketch7.addGeometry([
    Part.LineSegment(App.Vector(27.153871, -53.276549, 0), App.Vector(85.191651, -19.768396, 0)),
    Part.LineSegment(App.Vector(85.191651, -19.768396, 0), App.Vector(26.553284, 81.796259, 0)),
    Part.LineSegment(App.Vector(26.553284, 81.796259, 0), App.Vector(-31.484496, 48.288107, 0)),
    Part.LineSegment(App.Vector(-31.484496, 48.288107, 0), App.Vector(27.153871, -53.276549, 0)),
], False)
sketch7.addConstraint([
    Sketcher.Constraint("Coincident", 0, 2, 1, 1),
    Sketcher.Constraint("Coincident", 1, 2, 2, 1),
    Sketcher.Constraint("Coincident", 2, 2, 3, 1),
    Sketcher.Constraint("Coincident", 3, 2, 0, 1),
    Sketcher.Constraint("Distance", 0, Q("67.016268 mm")),
    Sketcher.Constraint("Distance", 2, Q("67.016268 mm")),
    Sketcher.Constraint("DistanceX", -1, 1, 0, 2, Q("85.191651 mm")),
    Sketcher.Constraint("DistanceY", -1, 1, 1, 2, Q("81.796259 mm")),
    Sketcher.Constraint("DistanceX", -1, 1, 3, 2, Q("27.153871 mm")),
    Sketcher.Constraint("DistanceY", 3, 2, -1, 1, Q("53.276549 mm")),
    Sketcher.Constraint("DistanceX", 2, 2, 1, 2, Q("58.03778 mm")),
    Sketcher.Constraint("Distance", 1, Q("117.276755 mm")),
])
pocket5 = body.newObject("PartDesign::Pocket", "Pocket004")
pocket5.Profile = sketch7
pocket5.Length = 10

# Sketch on XY plane
sketch8 = body.newObject("Sketcher::SketchObject", "Sketch007")
sketch8.AttachmentSupport = (doc.getObject("XY_Plane"), [""])
sketch8.MapMode = "FlatFace"
sketch8.AttachmentOffset = App.Placement(App.Vector(0, 0, 3.175), App.Rotation())
sketch8.addGeometry([
    Part.Circle(App.Vector(64.2, -50.4, 0), App.Vector(0, 0, 1), 1.5),
    Part.Circle(App.Vector(-9.5, 77.2, 0), App.Vector(0, 0, 1), 1.5),
], False)
sketch8.addConstraint([
    Sketcher.Constraint("Equal", 0, 1),
    Sketcher.Constraint("Diameter", 0, Q("3 mm")),
    Sketcher.Constraint("DistanceX", 1, 3, 0, 3, Q("73.64 mm")),
    Sketcher.Constraint("DistanceX", -1, 1, 0, 3, Q("64.180379 mm")),
    Sketcher.Constraint("DistanceY", 0, 3, -1, 1, Q("50.392062 mm")),
    Sketcher.Constraint("DistanceY", -1, 1, 1, 3, Q("77.15616 mm")),
])
pocket6 = body.newObject("PartDesign::Pocket", "Pocket005")
pocket6.Profile = sketch8
pocket6.Length = 10

doc.recompute()
